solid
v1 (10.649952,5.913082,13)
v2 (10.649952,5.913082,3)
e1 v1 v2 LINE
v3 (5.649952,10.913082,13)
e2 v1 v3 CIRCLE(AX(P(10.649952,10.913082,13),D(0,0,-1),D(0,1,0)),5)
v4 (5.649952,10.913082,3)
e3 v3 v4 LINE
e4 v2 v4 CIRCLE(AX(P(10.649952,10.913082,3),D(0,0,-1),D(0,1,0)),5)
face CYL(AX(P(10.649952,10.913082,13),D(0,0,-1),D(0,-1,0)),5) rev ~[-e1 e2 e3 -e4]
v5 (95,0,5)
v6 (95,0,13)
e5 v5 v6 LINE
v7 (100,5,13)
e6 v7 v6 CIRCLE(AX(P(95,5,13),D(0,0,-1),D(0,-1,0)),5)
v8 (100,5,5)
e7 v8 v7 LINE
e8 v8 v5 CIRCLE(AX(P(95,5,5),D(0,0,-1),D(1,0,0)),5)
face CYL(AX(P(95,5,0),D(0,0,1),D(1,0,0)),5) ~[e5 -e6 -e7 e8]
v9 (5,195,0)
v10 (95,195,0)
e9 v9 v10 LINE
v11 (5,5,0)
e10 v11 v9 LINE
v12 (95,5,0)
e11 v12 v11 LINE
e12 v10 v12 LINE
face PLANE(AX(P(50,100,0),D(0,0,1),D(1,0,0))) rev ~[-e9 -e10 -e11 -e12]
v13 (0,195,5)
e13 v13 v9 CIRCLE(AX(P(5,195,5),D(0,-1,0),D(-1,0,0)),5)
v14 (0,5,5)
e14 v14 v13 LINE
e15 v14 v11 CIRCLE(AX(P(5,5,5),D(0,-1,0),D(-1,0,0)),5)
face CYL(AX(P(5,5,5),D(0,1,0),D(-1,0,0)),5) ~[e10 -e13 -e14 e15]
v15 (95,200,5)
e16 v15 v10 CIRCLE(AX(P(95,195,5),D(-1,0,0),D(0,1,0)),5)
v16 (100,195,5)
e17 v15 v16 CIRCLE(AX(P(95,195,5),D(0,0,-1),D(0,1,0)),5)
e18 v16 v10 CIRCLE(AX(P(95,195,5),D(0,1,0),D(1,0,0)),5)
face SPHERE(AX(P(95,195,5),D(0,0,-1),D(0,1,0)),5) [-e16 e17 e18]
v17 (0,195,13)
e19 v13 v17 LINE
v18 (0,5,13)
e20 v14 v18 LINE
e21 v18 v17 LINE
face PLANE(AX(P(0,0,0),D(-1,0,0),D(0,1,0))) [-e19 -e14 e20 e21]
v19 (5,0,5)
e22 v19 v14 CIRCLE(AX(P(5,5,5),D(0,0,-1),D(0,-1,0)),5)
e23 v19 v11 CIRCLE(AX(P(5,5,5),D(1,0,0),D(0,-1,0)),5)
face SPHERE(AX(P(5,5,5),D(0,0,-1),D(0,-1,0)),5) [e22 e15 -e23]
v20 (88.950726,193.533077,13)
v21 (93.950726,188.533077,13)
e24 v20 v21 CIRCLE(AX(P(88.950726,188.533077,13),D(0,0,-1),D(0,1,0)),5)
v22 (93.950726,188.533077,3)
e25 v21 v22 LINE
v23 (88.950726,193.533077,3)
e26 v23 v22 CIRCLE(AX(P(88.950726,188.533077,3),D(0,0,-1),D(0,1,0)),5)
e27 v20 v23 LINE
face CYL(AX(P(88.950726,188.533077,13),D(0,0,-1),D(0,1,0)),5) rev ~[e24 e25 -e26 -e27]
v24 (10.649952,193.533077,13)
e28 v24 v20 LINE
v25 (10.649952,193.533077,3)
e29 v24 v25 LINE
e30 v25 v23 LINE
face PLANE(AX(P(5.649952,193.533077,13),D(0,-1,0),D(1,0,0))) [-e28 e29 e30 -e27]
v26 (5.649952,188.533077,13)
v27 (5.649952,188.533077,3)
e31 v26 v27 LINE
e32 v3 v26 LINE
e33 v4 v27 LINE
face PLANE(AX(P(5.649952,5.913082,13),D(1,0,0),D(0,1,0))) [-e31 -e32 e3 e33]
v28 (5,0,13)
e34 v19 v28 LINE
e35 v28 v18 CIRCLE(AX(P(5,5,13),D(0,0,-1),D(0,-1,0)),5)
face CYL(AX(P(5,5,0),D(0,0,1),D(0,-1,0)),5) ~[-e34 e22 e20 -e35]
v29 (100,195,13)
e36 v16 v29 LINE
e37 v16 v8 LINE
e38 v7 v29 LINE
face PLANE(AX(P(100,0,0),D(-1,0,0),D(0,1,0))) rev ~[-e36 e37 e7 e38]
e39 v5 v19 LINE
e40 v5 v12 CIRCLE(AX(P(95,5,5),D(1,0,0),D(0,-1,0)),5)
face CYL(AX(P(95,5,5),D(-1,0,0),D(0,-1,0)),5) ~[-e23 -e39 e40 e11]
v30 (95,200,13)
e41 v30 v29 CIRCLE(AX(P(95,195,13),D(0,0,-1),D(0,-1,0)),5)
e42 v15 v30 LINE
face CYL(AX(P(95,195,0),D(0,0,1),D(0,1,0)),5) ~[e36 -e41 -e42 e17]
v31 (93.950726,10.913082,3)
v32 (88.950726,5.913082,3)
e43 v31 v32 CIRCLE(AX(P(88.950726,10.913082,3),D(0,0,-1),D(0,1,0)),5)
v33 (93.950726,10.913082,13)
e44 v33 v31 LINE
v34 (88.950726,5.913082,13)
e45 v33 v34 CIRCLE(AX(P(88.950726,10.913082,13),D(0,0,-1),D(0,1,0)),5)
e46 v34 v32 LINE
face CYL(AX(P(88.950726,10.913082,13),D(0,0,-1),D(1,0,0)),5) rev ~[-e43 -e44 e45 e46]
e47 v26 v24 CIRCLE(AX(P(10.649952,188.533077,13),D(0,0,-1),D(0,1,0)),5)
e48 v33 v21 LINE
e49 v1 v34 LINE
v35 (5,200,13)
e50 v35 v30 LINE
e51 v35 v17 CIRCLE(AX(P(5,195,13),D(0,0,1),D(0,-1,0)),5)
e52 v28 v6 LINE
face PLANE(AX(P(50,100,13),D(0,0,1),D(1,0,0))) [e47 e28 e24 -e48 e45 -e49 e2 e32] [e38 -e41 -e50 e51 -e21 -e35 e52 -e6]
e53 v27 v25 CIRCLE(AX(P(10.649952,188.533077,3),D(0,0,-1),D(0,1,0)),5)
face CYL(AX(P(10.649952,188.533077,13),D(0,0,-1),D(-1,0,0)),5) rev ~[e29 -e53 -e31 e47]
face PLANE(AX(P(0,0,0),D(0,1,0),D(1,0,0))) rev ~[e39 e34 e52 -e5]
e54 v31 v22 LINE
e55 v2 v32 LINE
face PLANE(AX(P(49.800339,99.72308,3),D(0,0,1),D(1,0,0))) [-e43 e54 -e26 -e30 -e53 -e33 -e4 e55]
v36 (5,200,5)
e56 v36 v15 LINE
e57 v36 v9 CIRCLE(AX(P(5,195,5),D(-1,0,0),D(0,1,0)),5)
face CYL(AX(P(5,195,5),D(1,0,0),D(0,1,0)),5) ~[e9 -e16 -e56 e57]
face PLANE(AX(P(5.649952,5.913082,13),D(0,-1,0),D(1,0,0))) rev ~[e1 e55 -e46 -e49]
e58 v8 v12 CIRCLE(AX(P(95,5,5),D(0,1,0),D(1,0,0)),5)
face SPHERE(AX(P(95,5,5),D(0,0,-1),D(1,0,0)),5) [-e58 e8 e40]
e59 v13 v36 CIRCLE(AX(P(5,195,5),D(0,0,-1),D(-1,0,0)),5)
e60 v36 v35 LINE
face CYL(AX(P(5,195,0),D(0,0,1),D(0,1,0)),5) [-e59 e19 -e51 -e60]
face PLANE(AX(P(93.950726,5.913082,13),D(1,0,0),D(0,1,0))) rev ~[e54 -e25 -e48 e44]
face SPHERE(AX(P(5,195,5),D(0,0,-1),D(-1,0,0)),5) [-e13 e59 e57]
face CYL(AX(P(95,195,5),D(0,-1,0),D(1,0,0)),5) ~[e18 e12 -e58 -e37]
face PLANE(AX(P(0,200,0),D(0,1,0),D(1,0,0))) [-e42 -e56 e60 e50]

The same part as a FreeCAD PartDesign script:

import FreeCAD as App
import Part
import Sketcher


def edges_at(feature, points):
    """Names of the edges that pass closest to the given points."""
    edges = feature.Shape.Edges
    near = lambda p: min(range(len(edges)), key=lambda i: edges[i].distToShape(Part.Vertex(*p))[0])
    return sorted({f"Edge{near(p) + 1}" for p in points})


def add_polygon(sketch, points):
    """Adds a closed chain of lines whose ends are joined by coincident constraints."""
    first, n = sketch.GeometryCount, len(points)
    for a, b in zip(points, points[1:] + points[:1]):
        sketch.addGeometry(Part.LineSegment(App.Vector(*a, 0), App.Vector(*b, 0)), False)
    for i in range(n):
        sketch.addConstraint(Sketcher.Constraint("Coincident", first + i, 2, first + (i + 1) % n, 1))

doc = App.newDocument("Part")
body = doc.addObject("PartDesign::Body", "Body")

# Sketch on XY plane
sketch1 = body.newObject("Sketcher::SketchObject", "Sketch")
sketch1.AttachmentSupport = (doc.getObject("XY_Plane"), [""])
sketch1.MapMode = "FlatFace"
add_polygon(sketch1, [(0, 200), (0, 0), (100, 0), (100, 200)])  # lines 0-3
sketch1.addConstraint(Sketcher.Constraint("Vertical", 0))
sketch1.addConstraint(Sketcher.Constraint("Horizontal", 1))
sketch1.addConstraint(Sketcher.Constraint("Vertical", 2))
sketch1.addConstraint(Sketcher.Constraint("Horizontal", 3))
sketch1.addConstraint(Sketcher.Constraint("Coincident", 0, 2, -1, 1))
sketch1.addConstraint(Sketcher.Constraint("DistanceX", 1, 1, 1, 2, 100.0))
sketch1.addConstraint(Sketcher.Constraint("DistanceY", 0, 2, 0, 1, 200.0))
pad1 = body.newObject("PartDesign::Pad", "Pad")
pad1.Profile = sketch1
pad1.Length = 13

# Sketch on XY plane
sketch2 = body.newObject("Sketcher::SketchObject", "Sketch001")
sketch2.AttachmentSupport = (doc.getObject("XY_Plane"), [""])
sketch2.MapMode = "FlatFace"
sketch2.AttachmentOffset = App.Placement(App.Vector(0, 0, 13), App.Rotation())
add_polygon(sketch2, [(6, 194), (6, 6), (94, 6), (94, 194)])  # lines 0-3
sketch2.addConstraint(Sketcher.Constraint("Vertical", 0))
sketch2.addConstraint(Sketcher.Constraint("Horizontal", 1))
sketch2.addConstraint(Sketcher.Constraint("Vertical", 2))
sketch2.addConstraint(Sketcher.Constraint("Horizontal", 3))
sketch2.addConstraint(Sketcher.Constraint("DistanceX", 1, 1, 1, 2, 88.300774))
sketch2.addConstraint(Sketcher.Constraint("DistanceY", 0, 2, 0, 1, 187.619995))
sketch2.addConstraint(Sketcher.Constraint("DistanceX", -1, 1, 0, 2, 5.649952))
sketch2.addConstraint(Sketcher.Constraint("DistanceY", -1, 1, 0, 2, 5.913082))
pocket1 = body.newObject("PartDesign::Pocket", "Pocket")
pocket1.Profile = sketch2
pocket1.Length = 10
doc.recompute()

fillet = body.newObject("PartDesign::Fillet", "Fillet")
fillet.Base = (pocket1, edges_at(pocket1, [(100, 200, 6.5)]))
fillet.Radius = 5
doc.recompute()

fillet2 = body.newObject("PartDesign::Fillet", "Fillet001")
fillet2.Base = (fillet, edges_at(fillet, [(0, 200, 6.5)]))
fillet2.Radius = 5
doc.recompute()

fillet3 = body.newObject("PartDesign::Fillet", "Fillet002")
fillet3.Base = (fillet2, edges_at(fillet2, [(100, 0, 6.5)]))
fillet3.Radius = 5
doc.recompute()

fillet4 = body.newObject("PartDesign::Fillet", "Fillet003")
fillet4.Base = (fillet3, edges_at(fillet3, [(0, 0, 6.5)]))
fillet4.Radius = 5
doc.recompute()

fillet5 = body.newObject("PartDesign::Fillet", "Fillet004")
fillet5.Base = (fillet4, edges_at(fillet4, [(5.65, 5.913, 8)]))
fillet5.Radius = 5
doc.recompute()

fillet6 = body.newObject("PartDesign::Fillet", "Fillet005")
fillet6.Base = (fillet5, edges_at(fillet5, [(5.65, 193.533, 8)]))
fillet6.Radius = 5
doc.recompute()

fillet7 = body.newObject("PartDesign::Fillet", "Fillet006")
fillet7.Base = (fillet6, edges_at(fillet6, [(93.951, 193.533, 8)]))
fillet7.Radius = 5
doc.recompute()

fillet8 = body.newObject("PartDesign::Fillet", "Fillet007")
fillet8.Base = (fillet7, edges_at(fillet7, [(93.951, 5.913, 8)]))
fillet8.Radius = 5
doc.recompute()

fillet9 = body.newObject("PartDesign::Fillet", "Fillet008")
fillet9.Base = (fillet8, edges_at(fillet8, [(0, 100, 0)]))
fillet9.Radius = 5

doc.recompute()
